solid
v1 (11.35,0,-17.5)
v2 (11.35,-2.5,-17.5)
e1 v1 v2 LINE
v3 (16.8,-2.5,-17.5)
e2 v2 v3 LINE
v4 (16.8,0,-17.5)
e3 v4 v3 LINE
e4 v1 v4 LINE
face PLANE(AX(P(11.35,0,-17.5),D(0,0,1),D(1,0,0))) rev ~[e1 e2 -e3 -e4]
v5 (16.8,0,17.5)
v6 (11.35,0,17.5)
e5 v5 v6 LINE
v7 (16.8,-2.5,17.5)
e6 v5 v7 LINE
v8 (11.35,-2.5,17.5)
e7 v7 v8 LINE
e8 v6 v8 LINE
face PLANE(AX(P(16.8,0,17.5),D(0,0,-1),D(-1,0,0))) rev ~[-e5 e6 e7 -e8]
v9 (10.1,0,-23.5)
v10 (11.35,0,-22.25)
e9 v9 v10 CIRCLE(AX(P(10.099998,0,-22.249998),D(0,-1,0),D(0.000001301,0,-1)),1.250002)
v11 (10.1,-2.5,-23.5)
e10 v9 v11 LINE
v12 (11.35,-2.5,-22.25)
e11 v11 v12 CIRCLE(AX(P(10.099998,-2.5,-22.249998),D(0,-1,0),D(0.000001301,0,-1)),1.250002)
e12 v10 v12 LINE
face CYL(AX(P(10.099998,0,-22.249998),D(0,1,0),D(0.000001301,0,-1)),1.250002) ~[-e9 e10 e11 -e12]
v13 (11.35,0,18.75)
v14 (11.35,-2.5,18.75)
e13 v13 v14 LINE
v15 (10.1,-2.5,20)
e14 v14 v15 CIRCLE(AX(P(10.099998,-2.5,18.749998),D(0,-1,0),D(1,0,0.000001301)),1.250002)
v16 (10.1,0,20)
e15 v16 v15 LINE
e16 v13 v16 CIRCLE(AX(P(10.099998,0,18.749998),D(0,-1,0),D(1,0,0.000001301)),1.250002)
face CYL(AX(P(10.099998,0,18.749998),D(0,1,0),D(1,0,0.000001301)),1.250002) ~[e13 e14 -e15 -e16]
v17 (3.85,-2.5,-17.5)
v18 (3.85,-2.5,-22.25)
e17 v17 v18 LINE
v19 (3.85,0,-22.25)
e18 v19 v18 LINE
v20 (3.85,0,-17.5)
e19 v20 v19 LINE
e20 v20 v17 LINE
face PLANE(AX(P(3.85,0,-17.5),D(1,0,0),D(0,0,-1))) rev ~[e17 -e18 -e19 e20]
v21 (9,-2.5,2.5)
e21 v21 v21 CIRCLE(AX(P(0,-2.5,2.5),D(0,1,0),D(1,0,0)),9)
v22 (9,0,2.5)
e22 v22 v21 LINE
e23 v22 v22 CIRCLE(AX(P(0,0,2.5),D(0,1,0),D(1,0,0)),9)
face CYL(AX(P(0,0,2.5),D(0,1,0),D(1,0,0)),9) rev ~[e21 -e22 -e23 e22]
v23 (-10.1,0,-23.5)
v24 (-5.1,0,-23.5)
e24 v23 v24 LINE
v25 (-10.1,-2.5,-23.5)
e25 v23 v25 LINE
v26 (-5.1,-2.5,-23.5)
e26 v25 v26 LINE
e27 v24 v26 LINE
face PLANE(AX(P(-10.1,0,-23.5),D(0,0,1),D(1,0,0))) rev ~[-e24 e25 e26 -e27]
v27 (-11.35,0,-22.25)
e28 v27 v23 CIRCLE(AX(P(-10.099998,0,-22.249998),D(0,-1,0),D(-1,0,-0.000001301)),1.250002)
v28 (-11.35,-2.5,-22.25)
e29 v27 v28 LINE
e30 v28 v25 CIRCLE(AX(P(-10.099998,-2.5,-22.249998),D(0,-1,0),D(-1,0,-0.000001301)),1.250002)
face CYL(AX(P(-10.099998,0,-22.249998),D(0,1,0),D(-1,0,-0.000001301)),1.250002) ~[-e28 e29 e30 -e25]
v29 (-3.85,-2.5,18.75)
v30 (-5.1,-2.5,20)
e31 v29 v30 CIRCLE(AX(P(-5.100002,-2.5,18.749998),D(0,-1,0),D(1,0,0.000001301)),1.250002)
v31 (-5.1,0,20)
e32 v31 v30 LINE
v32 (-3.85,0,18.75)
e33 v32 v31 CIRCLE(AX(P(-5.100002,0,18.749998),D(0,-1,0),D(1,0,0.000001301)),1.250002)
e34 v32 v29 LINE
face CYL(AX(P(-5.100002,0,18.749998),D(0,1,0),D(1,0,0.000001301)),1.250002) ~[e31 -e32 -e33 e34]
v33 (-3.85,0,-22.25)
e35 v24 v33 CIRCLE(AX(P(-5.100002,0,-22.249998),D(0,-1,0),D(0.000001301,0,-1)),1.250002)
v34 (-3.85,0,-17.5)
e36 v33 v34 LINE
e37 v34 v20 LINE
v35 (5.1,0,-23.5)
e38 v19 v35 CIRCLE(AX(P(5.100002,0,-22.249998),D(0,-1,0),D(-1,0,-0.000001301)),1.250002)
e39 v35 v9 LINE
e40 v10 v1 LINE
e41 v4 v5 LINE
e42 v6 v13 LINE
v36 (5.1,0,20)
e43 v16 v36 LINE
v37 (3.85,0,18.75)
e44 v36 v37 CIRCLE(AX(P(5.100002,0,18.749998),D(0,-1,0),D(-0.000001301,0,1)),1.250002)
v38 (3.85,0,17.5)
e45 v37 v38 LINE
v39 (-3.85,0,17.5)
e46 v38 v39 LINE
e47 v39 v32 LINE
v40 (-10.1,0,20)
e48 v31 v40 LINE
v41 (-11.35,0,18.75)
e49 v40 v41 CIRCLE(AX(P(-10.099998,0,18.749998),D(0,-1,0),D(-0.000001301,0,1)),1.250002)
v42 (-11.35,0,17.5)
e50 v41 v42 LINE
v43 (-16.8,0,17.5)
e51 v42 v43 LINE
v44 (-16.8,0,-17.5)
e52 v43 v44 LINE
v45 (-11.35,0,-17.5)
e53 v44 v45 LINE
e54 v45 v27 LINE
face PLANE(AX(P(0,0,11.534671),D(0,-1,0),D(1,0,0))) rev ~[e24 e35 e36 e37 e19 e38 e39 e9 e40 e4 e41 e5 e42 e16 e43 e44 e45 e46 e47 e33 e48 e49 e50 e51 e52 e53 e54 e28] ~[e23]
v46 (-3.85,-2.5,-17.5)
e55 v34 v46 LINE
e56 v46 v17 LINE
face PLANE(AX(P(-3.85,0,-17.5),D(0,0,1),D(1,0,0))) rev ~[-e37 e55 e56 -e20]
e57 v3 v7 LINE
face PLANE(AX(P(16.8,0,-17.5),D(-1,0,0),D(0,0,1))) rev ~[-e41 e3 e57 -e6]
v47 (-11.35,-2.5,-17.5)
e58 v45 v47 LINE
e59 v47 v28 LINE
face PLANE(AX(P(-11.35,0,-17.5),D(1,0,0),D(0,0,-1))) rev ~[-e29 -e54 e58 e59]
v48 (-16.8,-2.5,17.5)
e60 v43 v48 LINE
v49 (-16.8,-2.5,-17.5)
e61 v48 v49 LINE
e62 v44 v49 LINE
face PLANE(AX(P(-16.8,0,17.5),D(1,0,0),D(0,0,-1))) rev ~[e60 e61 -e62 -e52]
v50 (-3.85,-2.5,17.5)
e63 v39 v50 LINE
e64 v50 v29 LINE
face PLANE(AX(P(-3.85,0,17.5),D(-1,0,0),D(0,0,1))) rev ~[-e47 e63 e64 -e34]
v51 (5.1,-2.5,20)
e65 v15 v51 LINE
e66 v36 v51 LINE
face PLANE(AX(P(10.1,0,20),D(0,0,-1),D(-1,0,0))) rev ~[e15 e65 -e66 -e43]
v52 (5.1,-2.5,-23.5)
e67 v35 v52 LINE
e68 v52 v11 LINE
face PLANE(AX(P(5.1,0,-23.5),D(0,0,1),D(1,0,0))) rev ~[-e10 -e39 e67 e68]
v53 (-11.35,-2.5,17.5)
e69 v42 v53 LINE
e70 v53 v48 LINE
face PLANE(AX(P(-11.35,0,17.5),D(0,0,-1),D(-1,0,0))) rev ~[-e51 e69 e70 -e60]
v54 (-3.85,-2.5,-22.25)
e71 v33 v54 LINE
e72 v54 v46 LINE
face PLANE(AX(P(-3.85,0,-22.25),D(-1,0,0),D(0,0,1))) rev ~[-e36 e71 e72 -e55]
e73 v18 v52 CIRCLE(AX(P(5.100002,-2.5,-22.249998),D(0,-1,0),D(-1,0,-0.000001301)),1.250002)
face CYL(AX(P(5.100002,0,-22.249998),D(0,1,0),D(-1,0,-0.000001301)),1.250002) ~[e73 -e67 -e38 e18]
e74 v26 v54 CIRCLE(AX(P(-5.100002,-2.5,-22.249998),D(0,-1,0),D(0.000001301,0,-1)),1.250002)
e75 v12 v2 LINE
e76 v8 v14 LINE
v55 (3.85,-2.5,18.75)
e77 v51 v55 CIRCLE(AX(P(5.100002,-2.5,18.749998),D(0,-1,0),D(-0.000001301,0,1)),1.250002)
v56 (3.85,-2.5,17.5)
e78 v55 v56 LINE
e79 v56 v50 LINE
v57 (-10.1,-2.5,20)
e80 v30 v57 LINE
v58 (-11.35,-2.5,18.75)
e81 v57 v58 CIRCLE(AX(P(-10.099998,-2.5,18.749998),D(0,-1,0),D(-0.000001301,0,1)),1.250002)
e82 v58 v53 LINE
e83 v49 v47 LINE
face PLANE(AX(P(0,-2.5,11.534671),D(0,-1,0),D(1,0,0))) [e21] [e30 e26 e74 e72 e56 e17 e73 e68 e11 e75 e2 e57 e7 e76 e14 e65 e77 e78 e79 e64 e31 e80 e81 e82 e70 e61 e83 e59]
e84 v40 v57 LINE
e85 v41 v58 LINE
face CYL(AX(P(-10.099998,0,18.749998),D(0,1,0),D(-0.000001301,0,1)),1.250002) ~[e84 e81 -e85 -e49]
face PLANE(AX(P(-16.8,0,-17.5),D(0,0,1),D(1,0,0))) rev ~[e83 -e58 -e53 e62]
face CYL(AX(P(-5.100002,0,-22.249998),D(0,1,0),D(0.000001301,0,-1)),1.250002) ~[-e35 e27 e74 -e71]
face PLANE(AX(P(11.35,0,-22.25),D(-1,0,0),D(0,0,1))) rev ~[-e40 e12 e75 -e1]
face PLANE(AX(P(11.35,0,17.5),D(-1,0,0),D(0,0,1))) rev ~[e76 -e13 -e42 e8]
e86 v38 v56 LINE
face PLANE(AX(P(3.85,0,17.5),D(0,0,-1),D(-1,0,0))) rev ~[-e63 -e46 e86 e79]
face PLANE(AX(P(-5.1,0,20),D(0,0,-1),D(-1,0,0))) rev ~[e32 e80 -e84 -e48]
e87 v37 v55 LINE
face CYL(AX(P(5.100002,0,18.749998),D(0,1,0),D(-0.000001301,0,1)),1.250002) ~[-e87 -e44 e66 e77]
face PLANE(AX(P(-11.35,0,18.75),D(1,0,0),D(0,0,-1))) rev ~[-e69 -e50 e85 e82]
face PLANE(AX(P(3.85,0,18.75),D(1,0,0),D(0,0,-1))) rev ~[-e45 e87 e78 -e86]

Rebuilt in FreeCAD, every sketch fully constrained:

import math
import FreeCAD as App
import Part
import Sketcher

V = App.Vector
Q = App.Units.Quantity

doc = App.newDocument("Part")
body = doc.addObject("PartDesign::Body", "Body")

# Sketch on XZ plane
sketch1 = doc.addObject("Sketcher::SketchObject", "Sketch")
body.addObject(sketch1)
sketch1.AttachmentSupport = (doc.XZ_Plane, [""])
sketch1.MapMode = "FlatFace"
sketch1.addGeometry([
    Part.LineSegment(V(-11.3, 17.5, 0), V(-16.8, 17.5, 0)),  # 0
    Part.LineSegment(V(-16.8, 17.5, 0), V(-16.8, -17.5, 0)),  # 1
    Part.LineSegment(V(-16.8, -17.5, 0), V(-11.3, -17.5, 0)),  # 2
    Part.LineSegment(V(-11.3, -17.5, 0), V(-11.3, -22.2, 0)),  # 3
    Part.ArcOfCircle(Part.Circle(V(-10.1, -22.2, 0), V(0, 0, 1), 1.3), math.radians(-180), math.radians(-90)),  # 4
    Part.LineSegment(V(-10.1, -23.5, 0), V(-5.1, -23.5, 0)),  # 5
    Part.ArcOfCircle(Part.Circle(V(-5.1, -22.2, 0), V(0, 0, 1), 1.3), math.radians(-90), math.radians(0)),  # 6
    Part.LineSegment(V(-3.9, -22.2, 0), V(-3.9, -17.5, 0)),  # 7
    Part.LineSegment(V(-3.9, -17.5, 0), V(3.9, -17.5, 0)),  # 8
    Part.LineSegment(V(3.9, -17.5, 0), V(3.9, -22.2, 0)),  # 9
    Part.ArcOfCircle(Part.Circle(V(5.1, -22.2, 0), V(0, 0, 1), 1.3), math.radians(-180), math.radians(-90)),  # 10
    Part.LineSegment(V(5.1, -23.5, 0), V(10.1, -23.5, 0)),  # 11
    Part.ArcOfCircle(Part.Circle(V(10.1, -22.2, 0), V(0, 0, 1), 1.3), math.radians(-90), math.radians(0)),  # 12
    Part.LineSegment(V(11.3, -22.2, 0), V(11.3, -17.5, 0)),  # 13
    Part.LineSegment(V(11.3, -17.5, 0), V(16.8, -17.5, 0)),  # 14
    Part.LineSegment(V(16.8, -17.5, 0), V(16.8, 17.5, 0)),  # 15
    Part.LineSegment(V(16.8, 17.5, 0), V(11.3, 17.5, 0)),  # 16
    Part.LineSegment(V(11.3, 17.5, 0), V(11.3, 18.8, 0)),  # 17
    Part.ArcOfCircle(Part.Circle(V(10.1, 18.7, 0), V(0, 0, 1), 1.3), math.radians(0), math.radians(90)),  # 18
    Part.LineSegment(V(10.1, 20, 0), V(5.1, 20, 0)),  # 19
    Part.ArcOfCircle(Part.Circle(V(5.1, 18.7, 0), V(0, 0, 1), 1.3), math.radians(90), math.radians(180)),  # 20
    Part.LineSegment(V(3.9, 18.8, 0), V(3.9, 17.5, 0)),  # 21
    Part.LineSegment(V(3.9, 17.5, 0), V(-3.9, 17.5, 0)),  # 22
    Part.LineSegment(V(-3.9, 17.5, 0), V(-3.9, 18.8, 0)),  # 23
    Part.ArcOfCircle(Part.Circle(V(-5.1, 18.7, 0), V(0, 0, 1), 1.3), math.radians(0), math.radians(90)),  # 24
    Part.LineSegment(V(-5.1, 20, 0), V(-10.1, 20, 0)),  # 25
    Part.ArcOfCircle(Part.Circle(V(-10.1, 18.7, 0), V(0, 0, 1), 1.3), math.radians(90), math.radians(180)),  # 26
    Part.LineSegment(V(-11.3, 18.8, 0), V(-11.3, 17.5, 0)),  # 27
    Part.Circle(V(0, 2.5, 0), V(0, 0, 1), 9),  # 28
], False)
sketch1.addConstraint([
    Sketcher.Constraint("Coincident", 0, 2, 1, 1),
    Sketcher.Constraint("Coincident", 1, 2, 2, 1),
    Sketcher.Constraint("Coincident", 2, 2, 3, 1),
    Sketcher.Constraint("Tangent", 3, 2, 4, 1),
    Sketcher.Constraint("Tangent", 4, 2, 5, 1),
    Sketcher.Constraint("Tangent", 5, 2, 6, 1),
    Sketcher.Constraint("Tangent", 6, 2, 7, 1),
    Sketcher.Constraint("Coincident", 7, 2, 8, 1),
    Sketcher.Constraint("Coincident", 8, 2, 9, 1),
    Sketcher.Constraint("Tangent", 9, 2, 10, 1),
    Sketcher.Constraint("Tangent", 10, 2, 11, 1),
    Sketcher.Constraint("Tangent", 11, 2, 12, 1),
    Sketcher.Constraint("Tangent", 12, 2, 13, 1),
    Sketcher.Constraint("Coincident", 13, 2, 14, 1),
    Sketcher.Constraint("Coincident", 14, 2, 15, 1),
    Sketcher.Constraint("Coincident", 15, 2, 16, 1),
    Sketcher.Constraint("Coincident", 16, 2, 17, 1),
    Sketcher.Constraint("Tangent", 17, 2, 18, 1),
    Sketcher.Constraint("Tangent", 18, 2, 19, 1),
    Sketcher.Constraint("Tangent", 19, 2, 20, 1),
    Sketcher.Constraint("Tangent", 20, 2, 21, 1),
    Sketcher.Constraint("Coincident", 21, 2, 22, 1),
    Sketcher.Constraint("Coincident", 22, 2, 23, 1),
    Sketcher.Constraint("Tangent", 23, 2, 24, 1),
    Sketcher.Constraint("Tangent", 24, 2, 25, 1),
    Sketcher.Constraint("Tangent", 25, 2, 26, 1),
    Sketcher.Constraint("Tangent", 26, 2, 27, 1),
    Sketcher.Constraint("Coincident", 27, 2, 0, 1),
    Sketcher.Constraint("Horizontal", 0),
    Sketcher.Constraint("Vertical", 1),
    Sketcher.Constraint("Horizontal", 2),
    Sketcher.Constraint("Vertical", 3),
    Sketcher.Constraint("Horizontal", 5),
    Sketcher.Constraint("Vertical", 7),
    Sketcher.Constraint("Horizontal", 8),
    Sketcher.Constraint("Vertical", 9),
    Sketcher.Constraint("Horizontal", 11),
    Sketcher.Constraint("Vertical", 13),
    Sketcher.Constraint("Horizontal", 14),
    Sketcher.Constraint("Vertical", 15),
    Sketcher.Constraint("Horizontal", 16),
    Sketcher.Constraint("Vertical", 17),
    Sketcher.Constraint("Horizontal", 19),
    Sketcher.Constraint("Vertical", 21),
    Sketcher.Constraint("Horizontal", 22),
    Sketcher.Constraint("Vertical", 23),
    Sketcher.Constraint("Horizontal", 25),
    Sketcher.Constraint("Vertical", 27),
    Sketcher.Constraint("Equal", 4, 6),
    Sketcher.Constraint("Equal", 6, 10),
    Sketcher.Constraint("Equal", 10, 12),
    Sketcher.Constraint("Equal", 12, 18),
    Sketcher.Constraint("Equal", 18, 20),
    Sketcher.Constraint("Equal", 20, 24),
    Sketcher.Constraint("Equal", 24, 26),
    Sketcher.Constraint("Symmetric", 0, 2, 14, 2, -1, 1),
    Sketcher.Constraint("Symmetric", 2, 2, 16, 2, -1, 1),
    Sketcher.Constraint("Symmetric", 7, 2, 21, 2, -1, 1),
    Sketcher.Constraint("Symmetric", 6, 3, 10, 3, -2),
    Sketcher.Constraint("Symmetric", 20, 3, 24, 3, -2),
    Sketcher.Constraint("Symmetric", 2, 2, 13, 2, -2),
    Sketcher.Constraint("PointOnObject", 28, 3, -2),
    Sketcher.Constraint("Horizontal", 2, 2, 7, 2),
    Sketcher.Constraint("Vertical", 4, 3, 26, 3),
    Sketcher.Constraint("Diameter", 28, Q("18 mm")),
    Sketcher.Constraint("DistanceX", 5, 1, 5, 2, Q("5 mm")),
    Sketcher.Constraint("DistanceY", 1, 2, 1, 1, Q("35 mm")),
    Sketcher.Constraint("Radius", 4, Q("1.250002 mm")),
    Sketcher.Constraint("DistanceX", 8, 1, 8, 2, Q("7.7 mm")),
    Sketcher.Constraint("DistanceY", -1, 1, 18, 2, Q("20 mm")),
    Sketcher.Constraint("DistanceY", 28, 3, 0, 2, Q("15 mm")),
    Sketcher.Constraint("DistanceY", 4, 2, 2, 2, Q("6 mm")),
    Sketcher.Constraint("DistanceX", 0, 2, 0, 1, Q("5.45 mm")),
])
pad1 = doc.addObject("PartDesign::Pad", "Pad")
body.addObject(pad1)
pad1.Profile = sketch1
pad1.Length = 2.5

doc.recompute()
